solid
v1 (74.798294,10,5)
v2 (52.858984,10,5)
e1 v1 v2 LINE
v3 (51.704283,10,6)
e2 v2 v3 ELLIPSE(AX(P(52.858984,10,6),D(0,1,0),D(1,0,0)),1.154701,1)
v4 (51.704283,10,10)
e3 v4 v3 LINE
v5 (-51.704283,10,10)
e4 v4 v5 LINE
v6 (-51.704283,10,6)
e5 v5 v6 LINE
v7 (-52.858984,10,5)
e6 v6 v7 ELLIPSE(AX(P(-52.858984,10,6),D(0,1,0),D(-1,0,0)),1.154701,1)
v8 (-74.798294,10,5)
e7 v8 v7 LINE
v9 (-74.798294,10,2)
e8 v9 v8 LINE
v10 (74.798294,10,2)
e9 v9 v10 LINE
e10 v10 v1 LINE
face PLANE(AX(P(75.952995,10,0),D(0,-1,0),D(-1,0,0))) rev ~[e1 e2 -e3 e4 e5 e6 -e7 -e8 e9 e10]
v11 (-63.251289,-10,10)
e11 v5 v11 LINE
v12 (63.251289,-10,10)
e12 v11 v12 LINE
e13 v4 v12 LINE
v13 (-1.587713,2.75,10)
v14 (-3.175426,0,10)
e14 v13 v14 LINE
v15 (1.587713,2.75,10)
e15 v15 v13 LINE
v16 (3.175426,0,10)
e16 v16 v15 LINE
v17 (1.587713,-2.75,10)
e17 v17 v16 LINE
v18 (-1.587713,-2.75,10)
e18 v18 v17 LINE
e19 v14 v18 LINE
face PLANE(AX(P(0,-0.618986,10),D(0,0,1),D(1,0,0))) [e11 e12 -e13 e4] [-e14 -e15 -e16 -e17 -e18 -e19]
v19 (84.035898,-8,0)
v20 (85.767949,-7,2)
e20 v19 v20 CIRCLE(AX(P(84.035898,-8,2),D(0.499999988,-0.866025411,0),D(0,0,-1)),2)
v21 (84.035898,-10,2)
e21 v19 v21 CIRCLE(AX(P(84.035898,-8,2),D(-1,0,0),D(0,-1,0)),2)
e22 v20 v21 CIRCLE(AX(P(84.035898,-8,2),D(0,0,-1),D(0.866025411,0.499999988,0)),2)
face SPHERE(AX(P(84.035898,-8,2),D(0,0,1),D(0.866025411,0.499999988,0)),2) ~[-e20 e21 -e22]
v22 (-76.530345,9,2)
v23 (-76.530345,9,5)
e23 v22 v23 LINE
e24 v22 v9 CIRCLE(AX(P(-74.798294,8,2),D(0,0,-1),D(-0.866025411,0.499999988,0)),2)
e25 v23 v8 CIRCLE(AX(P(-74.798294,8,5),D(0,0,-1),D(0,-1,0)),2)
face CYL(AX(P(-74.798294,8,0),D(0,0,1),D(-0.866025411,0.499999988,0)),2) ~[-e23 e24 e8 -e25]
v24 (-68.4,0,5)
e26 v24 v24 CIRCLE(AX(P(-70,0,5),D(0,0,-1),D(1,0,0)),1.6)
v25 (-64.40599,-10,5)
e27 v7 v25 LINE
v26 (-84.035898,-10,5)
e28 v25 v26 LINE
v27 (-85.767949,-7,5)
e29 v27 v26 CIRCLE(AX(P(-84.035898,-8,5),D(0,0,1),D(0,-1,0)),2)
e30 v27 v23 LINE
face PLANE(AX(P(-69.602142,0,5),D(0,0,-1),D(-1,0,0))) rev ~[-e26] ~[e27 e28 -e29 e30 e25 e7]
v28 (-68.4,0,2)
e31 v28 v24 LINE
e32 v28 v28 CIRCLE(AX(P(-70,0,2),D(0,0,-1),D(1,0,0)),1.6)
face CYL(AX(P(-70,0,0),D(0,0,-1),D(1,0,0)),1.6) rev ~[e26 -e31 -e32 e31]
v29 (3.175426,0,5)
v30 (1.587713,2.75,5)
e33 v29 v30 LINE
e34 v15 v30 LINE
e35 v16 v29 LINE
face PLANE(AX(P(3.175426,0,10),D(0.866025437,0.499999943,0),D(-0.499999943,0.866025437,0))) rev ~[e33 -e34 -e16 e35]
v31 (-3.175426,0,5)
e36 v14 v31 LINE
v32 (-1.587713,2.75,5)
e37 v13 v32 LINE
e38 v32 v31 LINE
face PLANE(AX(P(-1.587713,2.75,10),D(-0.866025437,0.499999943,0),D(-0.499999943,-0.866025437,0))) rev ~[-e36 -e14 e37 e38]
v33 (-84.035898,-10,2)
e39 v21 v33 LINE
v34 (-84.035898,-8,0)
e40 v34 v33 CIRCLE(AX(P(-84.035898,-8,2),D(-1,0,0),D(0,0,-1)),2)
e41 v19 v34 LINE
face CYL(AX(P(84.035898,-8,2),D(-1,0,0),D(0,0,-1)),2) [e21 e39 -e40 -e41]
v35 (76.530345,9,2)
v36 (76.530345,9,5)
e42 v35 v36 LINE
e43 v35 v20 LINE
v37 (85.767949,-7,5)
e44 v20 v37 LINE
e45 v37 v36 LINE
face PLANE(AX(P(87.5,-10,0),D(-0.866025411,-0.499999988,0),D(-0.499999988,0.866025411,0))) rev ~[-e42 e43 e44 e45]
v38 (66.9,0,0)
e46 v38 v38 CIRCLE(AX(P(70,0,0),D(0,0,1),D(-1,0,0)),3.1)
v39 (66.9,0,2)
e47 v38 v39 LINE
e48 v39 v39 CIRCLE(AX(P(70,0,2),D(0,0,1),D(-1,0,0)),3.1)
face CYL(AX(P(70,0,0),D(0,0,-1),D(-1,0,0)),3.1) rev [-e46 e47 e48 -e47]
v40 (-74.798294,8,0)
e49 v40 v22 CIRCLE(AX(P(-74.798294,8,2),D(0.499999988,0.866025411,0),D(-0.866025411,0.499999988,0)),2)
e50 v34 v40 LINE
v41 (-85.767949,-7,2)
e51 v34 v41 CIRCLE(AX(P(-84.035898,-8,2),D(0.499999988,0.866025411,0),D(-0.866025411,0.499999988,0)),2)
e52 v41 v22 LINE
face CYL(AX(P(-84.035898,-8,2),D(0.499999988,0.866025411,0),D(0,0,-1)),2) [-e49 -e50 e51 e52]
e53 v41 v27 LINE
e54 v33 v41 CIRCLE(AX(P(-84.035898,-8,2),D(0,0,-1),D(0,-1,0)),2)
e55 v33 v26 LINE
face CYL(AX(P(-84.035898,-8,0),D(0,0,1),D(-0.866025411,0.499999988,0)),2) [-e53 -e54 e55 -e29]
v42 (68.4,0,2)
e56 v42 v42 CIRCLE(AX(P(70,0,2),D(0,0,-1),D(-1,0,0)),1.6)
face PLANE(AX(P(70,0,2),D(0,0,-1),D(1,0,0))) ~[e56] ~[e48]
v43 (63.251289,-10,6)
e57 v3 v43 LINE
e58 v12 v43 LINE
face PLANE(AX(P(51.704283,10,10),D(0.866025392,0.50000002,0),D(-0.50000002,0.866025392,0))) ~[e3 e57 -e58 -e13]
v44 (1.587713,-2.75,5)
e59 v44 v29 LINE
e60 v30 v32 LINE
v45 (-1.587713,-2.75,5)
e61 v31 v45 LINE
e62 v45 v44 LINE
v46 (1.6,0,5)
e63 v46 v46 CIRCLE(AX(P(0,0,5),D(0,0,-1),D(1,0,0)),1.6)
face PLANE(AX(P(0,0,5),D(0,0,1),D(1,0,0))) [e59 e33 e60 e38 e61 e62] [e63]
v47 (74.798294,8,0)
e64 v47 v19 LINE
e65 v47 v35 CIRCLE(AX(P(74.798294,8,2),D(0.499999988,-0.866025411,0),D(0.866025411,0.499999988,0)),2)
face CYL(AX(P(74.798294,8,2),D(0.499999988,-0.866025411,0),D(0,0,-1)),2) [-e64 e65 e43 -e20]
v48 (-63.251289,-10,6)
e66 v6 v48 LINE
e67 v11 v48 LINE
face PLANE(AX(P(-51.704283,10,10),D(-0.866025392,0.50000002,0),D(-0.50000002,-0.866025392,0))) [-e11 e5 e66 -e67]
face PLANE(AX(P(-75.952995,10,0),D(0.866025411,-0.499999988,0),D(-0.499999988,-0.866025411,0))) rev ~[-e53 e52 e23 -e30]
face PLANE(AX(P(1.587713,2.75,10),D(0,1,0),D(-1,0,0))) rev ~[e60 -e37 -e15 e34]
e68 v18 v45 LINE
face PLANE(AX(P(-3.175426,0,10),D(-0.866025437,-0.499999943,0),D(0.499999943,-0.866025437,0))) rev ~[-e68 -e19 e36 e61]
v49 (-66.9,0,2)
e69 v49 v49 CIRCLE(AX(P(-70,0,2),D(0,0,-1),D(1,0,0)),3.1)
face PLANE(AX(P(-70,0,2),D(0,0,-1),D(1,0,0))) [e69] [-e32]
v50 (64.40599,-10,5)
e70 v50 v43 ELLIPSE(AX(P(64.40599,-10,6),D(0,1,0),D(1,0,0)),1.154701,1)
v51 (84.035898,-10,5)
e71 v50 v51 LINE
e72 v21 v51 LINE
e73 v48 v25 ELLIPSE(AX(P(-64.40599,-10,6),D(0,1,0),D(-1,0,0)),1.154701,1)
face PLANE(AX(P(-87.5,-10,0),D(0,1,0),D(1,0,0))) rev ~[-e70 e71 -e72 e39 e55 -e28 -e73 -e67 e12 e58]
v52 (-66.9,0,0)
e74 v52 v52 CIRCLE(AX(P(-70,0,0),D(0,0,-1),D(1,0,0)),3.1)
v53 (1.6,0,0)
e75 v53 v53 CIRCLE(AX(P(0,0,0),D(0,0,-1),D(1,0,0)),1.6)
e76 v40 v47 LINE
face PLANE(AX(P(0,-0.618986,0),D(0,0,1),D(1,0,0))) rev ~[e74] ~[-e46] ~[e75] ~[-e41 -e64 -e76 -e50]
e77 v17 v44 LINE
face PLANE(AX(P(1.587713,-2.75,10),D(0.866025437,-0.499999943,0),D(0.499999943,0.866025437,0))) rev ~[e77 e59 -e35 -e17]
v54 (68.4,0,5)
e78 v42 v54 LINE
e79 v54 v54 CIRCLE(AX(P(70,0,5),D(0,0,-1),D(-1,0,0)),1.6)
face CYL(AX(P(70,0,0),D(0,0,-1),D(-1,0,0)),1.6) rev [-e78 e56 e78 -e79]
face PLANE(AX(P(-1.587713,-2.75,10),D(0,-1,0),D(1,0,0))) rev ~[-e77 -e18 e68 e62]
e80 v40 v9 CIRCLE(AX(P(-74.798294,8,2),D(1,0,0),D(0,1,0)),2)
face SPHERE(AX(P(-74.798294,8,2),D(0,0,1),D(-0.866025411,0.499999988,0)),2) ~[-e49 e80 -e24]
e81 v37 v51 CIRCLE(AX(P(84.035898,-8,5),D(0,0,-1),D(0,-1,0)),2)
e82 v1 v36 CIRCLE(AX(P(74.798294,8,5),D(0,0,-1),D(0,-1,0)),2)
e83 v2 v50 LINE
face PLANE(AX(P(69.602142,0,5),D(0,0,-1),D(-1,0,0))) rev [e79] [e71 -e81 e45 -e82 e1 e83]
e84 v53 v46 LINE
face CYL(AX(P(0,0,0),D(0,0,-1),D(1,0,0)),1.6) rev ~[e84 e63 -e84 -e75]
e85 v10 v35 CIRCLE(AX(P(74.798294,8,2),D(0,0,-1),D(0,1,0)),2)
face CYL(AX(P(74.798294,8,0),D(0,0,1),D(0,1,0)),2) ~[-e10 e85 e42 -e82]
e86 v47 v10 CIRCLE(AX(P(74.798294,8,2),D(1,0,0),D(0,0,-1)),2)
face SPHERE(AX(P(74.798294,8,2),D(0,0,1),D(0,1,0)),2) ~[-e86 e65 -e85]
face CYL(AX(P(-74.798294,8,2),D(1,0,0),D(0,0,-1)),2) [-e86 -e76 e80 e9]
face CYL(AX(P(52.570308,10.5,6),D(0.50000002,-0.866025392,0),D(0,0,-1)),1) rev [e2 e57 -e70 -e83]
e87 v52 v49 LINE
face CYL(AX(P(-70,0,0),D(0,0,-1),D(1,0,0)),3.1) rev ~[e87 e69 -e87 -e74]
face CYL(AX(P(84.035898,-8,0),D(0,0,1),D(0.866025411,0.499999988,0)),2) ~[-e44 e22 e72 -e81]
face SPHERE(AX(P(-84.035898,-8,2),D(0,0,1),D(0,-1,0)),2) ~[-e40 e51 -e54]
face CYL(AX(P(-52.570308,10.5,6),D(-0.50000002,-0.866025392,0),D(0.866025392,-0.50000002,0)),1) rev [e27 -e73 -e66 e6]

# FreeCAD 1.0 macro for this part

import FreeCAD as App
import Part
import Sketcher

V = App.Vector
Q = App.Units.Quantity


def edges_at(feature, points):
    """Names of the edges that pass closest to the given points."""
    edges = feature.Shape.Edges
    near = lambda p: min(range(len(edges)), key=lambda i: edges[i].distToShape(Part.Vertex(*p))[0])
    return sorted({f"Edge{near(p) + 1}" for p in points})

doc = App.newDocument("Part")
body = doc.addObject("PartDesign::Body", "Body")

# Sketch on XY plane
sketch1 = body.newObject("Sketcher::SketchObject", "Sketch")
sketch1.AttachmentSupport = (doc.getObject("XY_Plane"), [""])
sketch1.MapMode = "FlatFace"
sketch1.addGeometry([
    Part.LineSegment(V(-76, 10, 0), V(-88, -10, 0)),
    Part.LineSegment(V(-88, -10, 0), V(88, -10, 0)),
    Part.LineSegment(V(88, -10, 0), V(76, 10, 0)),
    Part.LineSegment(V(76, 10, 0), V(-76, 10, 0)),
], False)
sketch1.addConstraint([
    Sketcher.Constraint("Coincident", 0, 2, 1, 1),
    Sketcher.Constraint("Coincident", 1, 2, 2, 1),
    Sketcher.Constraint("Coincident", 2, 2, 3, 1),
    Sketcher.Constraint("Coincident", 3, 2, 0, 1),
    Sketcher.Constraint("Horizontal", 1),
    Sketcher.Constraint("Horizontal", 3),
    Sketcher.Constraint("Equal", 0, 2),
    Sketcher.Constraint("DistanceX", 1, 1, 1, 2, 175.0),
    Sketcher.Constraint("Angle", 0, Q("-119.999999 deg")),
    Sketcher.Constraint("DistanceY", 0, 2, -1, 1, 10.0),
    Sketcher.Constraint("DistanceY", -1, 1, 2, 2, 10.0),
    Sketcher.Constraint("DistanceX", 0, 2, -1, 1, 87.5),
])
pad1 = body.newObject("PartDesign::Pad", "Pad")
pad1.Profile = sketch1
pad1.Length = 10

# Sketch on XY plane
sketch2 = body.newObject("Sketcher::SketchObject", "Sketch001")
sketch2.AttachmentSupport = (doc.getObject("XY_Plane"), [""])
sketch2.MapMode = "FlatFace"
sketch2.AttachmentOffset = App.Placement(V(0, 0, 10), App.Rotation())
sketch2.addGeometry([
    Part.LineSegment(V(-52, 10, 0), V(-76, 10, 0)),
    Part.LineSegment(V(-76, 10, 0), V(-88, -10, 0)),
    Part.LineSegment(V(-88, -10, 0), V(-63, -10, 0)),
    Part.LineSegment(V(-63, -10, 0), V(-52, 10, 0)),
], False)
sketch2.addConstraint([
    Sketcher.Constraint("Coincident", 0, 2, 1, 1),
    Sketcher.Constraint("Coincident", 1, 2, 2, 1),
    Sketcher.Constraint("Coincident", 2, 2, 3, 1),
    Sketcher.Constraint("Coincident", 3, 2, 0, 1),
    Sketcher.Constraint("Horizontal", 0),
    Sketcher.Constraint("Horizontal", 2),
    Sketcher.Constraint("Parallel", 1, 3),
    Sketcher.Constraint("Angle", 1, Q("-119.999999 deg")),
    Sketcher.Constraint("DistanceY", -1, 1, 0, 2, 10.0),
    Sketcher.Constraint("DistanceY", 1, 2, -1, 1, 10.0),
    Sketcher.Constraint("DistanceX", 1, 2, -1, 1, 87.5),
    Sketcher.Constraint("DistanceX", 2, 1, 2, 2, 24.248711),
])
pocket1 = body.newObject("PartDesign::Pocket", "Pocket")
pocket1.Profile = sketch2
pocket1.Length = 5
doc.recompute()

mirrored = body.newObject("PartDesign::Mirrored", "Mirrored")
mirrored.Originals = [pocket1]
mirrored.MirrorPlane = (doc.getObject("YZ_Plane"), [""])
body.Tip = mirrored

# Sketch on XY plane
sketch3 = body.newObject("Sketcher::SketchObject", "Sketch002")
sketch3.AttachmentSupport = (doc.getObject("XY_Plane"), [""])
sketch3.MapMode = "FlatFace"
sketch3.addGeometry(Part.Circle(V(0, 0, 0), V(0, 0, 1), 1.6), False)
sketch3.addConstraint([
    Sketcher.Constraint("Coincident", 0, 3, -1, 1),
    Sketcher.Constraint("Diameter", 0, 3.2),
])
pocket2 = body.newObject("PartDesign::Pocket", "Pocket001")
pocket2.Profile = sketch3
pocket2.Type = "ThroughAll"
pocket2.Reversed = True

# Sketch on XY plane
sketch4 = body.newObject("Sketcher::SketchObject", "Sketch003")
sketch4.AttachmentSupport = (doc.getObject("XY_Plane"), [""])
sketch4.MapMode = "FlatFace"
sketch4.addGeometry(Part.Circle(V(-70, 0, 0), V(0, 0, 1), 1.6), False)
sketch4.addConstraint([
    Sketcher.Constraint("PointOnObject", 0, 3, -1),
    Sketcher.Constraint("Diameter", 0, 3.2),
    Sketcher.Constraint("DistanceX", 0, 3, -1, 1, 70.0),
])
pocket3 = body.newObject("PartDesign::Pocket", "Pocket002")
pocket3.Profile = sketch4
pocket3.Type = "ThroughAll"
pocket3.Reversed = True
doc.recompute()

mirrored2 = body.newObject("PartDesign::Mirrored", "Mirrored001")
mirrored2.Originals = [pocket3]
mirrored2.MirrorPlane = (doc.getObject("YZ_Plane"), [""])
body.Tip = mirrored2

# Sketch on XY plane
sketch5 = body.newObject("Sketcher::SketchObject", "Sketch004")
sketch5.AttachmentSupport = (doc.getObject("XY_Plane"), [""])
sketch5.MapMode = "FlatFace"
sketch5.AttachmentOffset = App.Placement(V(0, 0, 10), App.Rotation())
sketch5.addGeometry([
    Part.LineSegment(V(3.2, 0, 0), V(1.6, 2.8, 0)),  # 0
    Part.LineSegment(V(1.6, 2.8, 0), V(-1.6, 2.8, 0)),  # 1
    Part.LineSegment(V(-1.6, 2.8, 0), V(-3.2, 0, 0)),  # 2
    Part.LineSegment(V(-3.2, 0, 0), V(-1.6, -2.8, 0)),  # 3
    Part.LineSegment(V(-1.6, -2.8, 0), V(1.6, -2.8, 0)),  # 4
    Part.LineSegment(V(1.6, -2.8, 0), V(3.2, 0, 0)),  # 5
], False)
sketch5.addConstraint([
    Sketcher.Constraint("Coincident", 0, 2, 1, 1),
    Sketcher.Constraint("Coincident", 1, 2, 2, 1),
    Sketcher.Constraint("Coincident", 2, 2, 3, 1),
    Sketcher.Constraint("Coincident", 3, 2, 4, 1),
    Sketcher.Constraint("Coincident", 4, 2, 5, 1),
    Sketcher.Constraint("Coincident", 5, 2, 0, 1),
    Sketcher.Constraint("Horizontal", 1),
    Sketcher.Constraint("Horizontal", 4),
    Sketcher.Constraint("Symmetric", 0, 2, 3, 2, -1, 1),
    Sketcher.Constraint("Symmetric", 2, 2, 5, 2, -1, 1),
    Sketcher.Constraint("PointOnObject", 2, 2, -1),
    Sketcher.Constraint("Parallel", 2, 5),
    Sketcher.Constraint("Vertical", 1, 2, 3, 2),
    Sketcher.Constraint("Angle", 0, Q("119.999996 deg")),
    Sketcher.Constraint("DistanceY", 3, 2, 1, 2, 5.5),
    Sketcher.Constraint("DistanceX", 1, 2, 1, 1, 3.175426),
])
pocket4 = body.newObject("PartDesign::Pocket", "Pocket003")
pocket4.Profile = sketch5
pocket4.Length = 5

# Sketch on XY plane
sketch6 = body.newObject("Sketcher::SketchObject", "Sketch005")
sketch6.AttachmentSupport = (doc.getObject("XY_Plane"), [""])
sketch6.MapMode = "FlatFace"
sketch6.addGeometry(Part.Circle(V(-70, 0, 0), V(0, 0, 1), 3.1), False)
sketch6.addConstraint([
    Sketcher.Constraint("PointOnObject", 0, 3, -1),
    Sketcher.Constraint("Diameter", 0, 6.2),
    Sketcher.Constraint("DistanceX", 0, 3, -1, 1, 70.0),
])
pocket5 = body.newObject("PartDesign::Pocket", "Pocket004")
pocket5.Profile = sketch6
pocket5.Length = 2
pocket5.Reversed = True
doc.recompute()

mirrored3 = body.newObject("PartDesign::Mirrored", "Mirrored002")
mirrored3.Originals = [pocket5]
mirrored3.MirrorPlane = (doc.getObject("YZ_Plane"), [""])
body.Tip = mirrored3
doc.recompute()

fillet = body.newObject("PartDesign::Fillet", "Fillet")
fillet.Base = (mirrored3, edges_at(mirrored3, [(-75.953, 10, 2.5)]))
fillet.Radius = 2
doc.recompute()

fillet2 = body.newObject("PartDesign::Fillet", "Fillet001")
fillet2.Base = (fillet, edges_at(fillet, [(-87.5, -10, 2.5)]))
fillet2.Radius = 2
doc.recompute()

fillet3 = body.newObject("PartDesign::Fillet", "Fillet002")
fillet3.Base = (fillet2, edges_at(fillet2, [(75.953, 10, 2.5)]))
fillet3.Radius = 2
doc.recompute()

fillet4 = body.newObject("PartDesign::Fillet", "Fillet003")
fillet4.Base = (fillet3, edges_at(fillet3, [(87.5, -10, 2.5)]))
fillet4.Radius = 2
doc.recompute()

fillet5 = body.newObject("PartDesign::Fillet", "Fillet004")
fillet5.Base = (fillet4, edges_at(fillet4, [(-75.798, 9.732, 0)]))
fillet5.Radius = 2
doc.recompute()

fillet6 = body.newObject("PartDesign::Fillet", "Fillet005")
fillet6.Base = (fillet5, edges_at(fillet5, [(57.478, 0, 5)]))
fillet6.Radius = 1
doc.recompute()

fillet7 = body.newObject("PartDesign::Fillet", "Fillet006")
fillet7.Base = (fillet6, edges_at(fillet6, [(-57.478, 0, 5)]))
fillet7.Radius = 1

doc.recompute()
